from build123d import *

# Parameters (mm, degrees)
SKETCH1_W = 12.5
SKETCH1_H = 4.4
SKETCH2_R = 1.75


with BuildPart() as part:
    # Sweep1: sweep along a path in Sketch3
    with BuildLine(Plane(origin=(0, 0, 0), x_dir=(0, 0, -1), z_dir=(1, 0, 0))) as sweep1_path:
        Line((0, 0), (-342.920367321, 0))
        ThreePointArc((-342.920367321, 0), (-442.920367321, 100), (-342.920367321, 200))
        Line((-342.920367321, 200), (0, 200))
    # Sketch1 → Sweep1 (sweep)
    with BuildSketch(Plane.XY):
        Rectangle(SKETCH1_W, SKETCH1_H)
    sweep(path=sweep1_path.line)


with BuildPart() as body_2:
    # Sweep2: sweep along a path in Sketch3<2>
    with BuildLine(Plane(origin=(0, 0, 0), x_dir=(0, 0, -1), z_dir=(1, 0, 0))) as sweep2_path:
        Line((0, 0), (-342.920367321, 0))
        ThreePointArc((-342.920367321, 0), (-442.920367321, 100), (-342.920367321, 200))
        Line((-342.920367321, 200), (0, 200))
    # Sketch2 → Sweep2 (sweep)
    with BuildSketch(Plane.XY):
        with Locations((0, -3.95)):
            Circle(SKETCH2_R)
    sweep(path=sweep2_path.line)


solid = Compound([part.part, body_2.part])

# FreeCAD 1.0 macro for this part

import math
import FreeCAD as App
import Part
import Sketcher
from FreeCAD import Vector
Q = App.Units.Quantity


def add_polygon(sketch, points):
    """Adds a closed chain of lines whose ends are joined by coincident constraints."""
    first, n = sketch.GeometryCount, len(points)
    for a, b in zip(points, points[1:] + points[:1]):
        sketch.addGeometry(Part.LineSegment(App.Vector(*a, 0), App.Vector(*b, 0)), False)
    for i in range(n):
        sketch.addConstraint(Sketcher.Constraint("Coincident", first + i, 2, first + (i + 1) % n, 1))

doc = App.newDocument("Part")
body = doc.addObject("PartDesign::Body", "Body")

# Sketch on XY plane
sketch1 = body.newObject("Sketcher::SketchObject", "Sketch")
sketch1.AttachmentSupport = (doc.getObject("XY_Plane"), [""])
sketch1.MapMode = "FlatFace"
add_polygon(sketch1, [(-6.25, 2.2), (-6.25, -2.2), (6.25, -2.2), (6.25, 2.2)])  # lines 0-3
sketch1.addConstraint([
    Sketcher.Constraint("Vertical", 0),
    Sketcher.Constraint("Horizontal", 1),
    Sketcher.Constraint("Vertical", 2),
    Sketcher.Constraint("Horizontal", 3),
    Sketcher.Constraint("Symmetric", 0, 2, 2, 2, -1, 1),
    Sketcher.Constraint("DistanceX", 1, 1, 1, 2, Q("12.5 mm")),
    Sketcher.Constraint("DistanceY", 0, 2, 0, 1, Q("4.4 mm")),
])

# Sketch on YZ plane
sketch2 = body.newObject("Sketcher::SketchObject", "Sketch001")
sketch2.AttachmentSupport = (doc.getObject("YZ_Plane"), [""])
sketch2.MapMode = "FlatFace"
sketch2.addGeometry([
    Part.LineSegment(Vector(0, 0, 0), Vector(0, 342.920367, 0)),
    Part.ArcOfCircle(Part.Circle(Vector(100, 342.920367, 0), Vector(0, 0, 1), 100), math.radians(0), math.radians(180)),
    Part.LineSegment(Vector(200, 342.920367, 0), Vector(200, 0, 0)),
], False)
sketch2.addConstraint([
    Sketcher.Constraint("Tangent", 0, 2, 1, 2),
    Sketcher.Constraint("Tangent", 1, 1, 2, 1),
    Sketcher.Constraint("Vertical", 0),
    Sketcher.Constraint("Vertical", 2),
    Sketcher.Constraint("Coincident", 0, 1, -1, 1),
    Sketcher.Constraint("PointOnObject", 2, 2, -1),
    Sketcher.Constraint("Radius", 1, Q("100 mm")),
    Sketcher.Constraint("DistanceY", 0, 1, 0, 2, Q("342.920367 mm")),
])
doc.recompute()

additivepipe = body.newObject("PartDesign::AdditivePipe", "AdditivePipe")
additivepipe.Profile = sketch1
additivepipe.Spine = (sketch2, ["Edge1", "Edge2", "Edge3"])
body2 = doc.addObject("PartDesign::Body", "Body001")

# Sketch on XY plane
sketch3 = body2.newObject("Sketcher::SketchObject", "Sketch002")
sketch3.AttachmentSupport = (doc.getObject("XY_Plane001"), [""])
sketch3.MapMode = "FlatFace"
sketch3.addGeometry(Part.Circle(Vector(0, -3.95, 0), Vector(0, 0, 1), 1.75), False)
sketch3.addConstraint([
    Sketcher.Constraint("PointOnObject", 0, 3, -2),
    Sketcher.Constraint("Diameter", 0, Q("3.5 mm")),
    Sketcher.Constraint("DistanceY", 0, 3, -1, 1, Q("3.95 mm")),
])

# Sketch on YZ plane
sketch4 = body2.newObject("Sketcher::SketchObject", "Sketch003")
sketch4.AttachmentSupport = (doc.getObject("YZ_Plane001"), [""])
sketch4.MapMode = "FlatFace"
sketch4.addGeometry([
    Part.LineSegment(Vector(0, 0, 0), Vector(0, 342.920367, 0)),
    Part.ArcOfCircle(Part.Circle(Vector(100, 342.920367, 0), Vector(0, 0, 1), 100), math.radians(0), math.radians(180)),
    Part.LineSegment(Vector(200, 342.920367, 0), Vector(200, 0, 0)),
], False)
sketch4.addConstraint([
    Sketcher.Constraint("Tangent", 0, 2, 1, 2),
    Sketcher.Constraint("Tangent", 1, 1, 2, 1),
    Sketcher.Constraint("Vertical", 0),
    Sketcher.Constraint("Vertical", 2),
    Sketcher.Constraint("Coincident", 0, 1, -1, 1),
    Sketcher.Constraint("PointOnObject", 2, 2, -1),
    Sketcher.Constraint("Radius", 1, Q("100 mm")),
    Sketcher.Constraint("DistanceY", 0, 1, 0, 2, Q("342.920367 mm")),
])
doc.recompute()

additivepipe2 = body2.newObject("PartDesign::AdditivePipe", "AdditivePipe001")
additivepipe2.Profile = sketch3
additivepipe2.Spine = (sketch4, ["Edge1", "Edge2", "Edge3"])

doc.recompute()
